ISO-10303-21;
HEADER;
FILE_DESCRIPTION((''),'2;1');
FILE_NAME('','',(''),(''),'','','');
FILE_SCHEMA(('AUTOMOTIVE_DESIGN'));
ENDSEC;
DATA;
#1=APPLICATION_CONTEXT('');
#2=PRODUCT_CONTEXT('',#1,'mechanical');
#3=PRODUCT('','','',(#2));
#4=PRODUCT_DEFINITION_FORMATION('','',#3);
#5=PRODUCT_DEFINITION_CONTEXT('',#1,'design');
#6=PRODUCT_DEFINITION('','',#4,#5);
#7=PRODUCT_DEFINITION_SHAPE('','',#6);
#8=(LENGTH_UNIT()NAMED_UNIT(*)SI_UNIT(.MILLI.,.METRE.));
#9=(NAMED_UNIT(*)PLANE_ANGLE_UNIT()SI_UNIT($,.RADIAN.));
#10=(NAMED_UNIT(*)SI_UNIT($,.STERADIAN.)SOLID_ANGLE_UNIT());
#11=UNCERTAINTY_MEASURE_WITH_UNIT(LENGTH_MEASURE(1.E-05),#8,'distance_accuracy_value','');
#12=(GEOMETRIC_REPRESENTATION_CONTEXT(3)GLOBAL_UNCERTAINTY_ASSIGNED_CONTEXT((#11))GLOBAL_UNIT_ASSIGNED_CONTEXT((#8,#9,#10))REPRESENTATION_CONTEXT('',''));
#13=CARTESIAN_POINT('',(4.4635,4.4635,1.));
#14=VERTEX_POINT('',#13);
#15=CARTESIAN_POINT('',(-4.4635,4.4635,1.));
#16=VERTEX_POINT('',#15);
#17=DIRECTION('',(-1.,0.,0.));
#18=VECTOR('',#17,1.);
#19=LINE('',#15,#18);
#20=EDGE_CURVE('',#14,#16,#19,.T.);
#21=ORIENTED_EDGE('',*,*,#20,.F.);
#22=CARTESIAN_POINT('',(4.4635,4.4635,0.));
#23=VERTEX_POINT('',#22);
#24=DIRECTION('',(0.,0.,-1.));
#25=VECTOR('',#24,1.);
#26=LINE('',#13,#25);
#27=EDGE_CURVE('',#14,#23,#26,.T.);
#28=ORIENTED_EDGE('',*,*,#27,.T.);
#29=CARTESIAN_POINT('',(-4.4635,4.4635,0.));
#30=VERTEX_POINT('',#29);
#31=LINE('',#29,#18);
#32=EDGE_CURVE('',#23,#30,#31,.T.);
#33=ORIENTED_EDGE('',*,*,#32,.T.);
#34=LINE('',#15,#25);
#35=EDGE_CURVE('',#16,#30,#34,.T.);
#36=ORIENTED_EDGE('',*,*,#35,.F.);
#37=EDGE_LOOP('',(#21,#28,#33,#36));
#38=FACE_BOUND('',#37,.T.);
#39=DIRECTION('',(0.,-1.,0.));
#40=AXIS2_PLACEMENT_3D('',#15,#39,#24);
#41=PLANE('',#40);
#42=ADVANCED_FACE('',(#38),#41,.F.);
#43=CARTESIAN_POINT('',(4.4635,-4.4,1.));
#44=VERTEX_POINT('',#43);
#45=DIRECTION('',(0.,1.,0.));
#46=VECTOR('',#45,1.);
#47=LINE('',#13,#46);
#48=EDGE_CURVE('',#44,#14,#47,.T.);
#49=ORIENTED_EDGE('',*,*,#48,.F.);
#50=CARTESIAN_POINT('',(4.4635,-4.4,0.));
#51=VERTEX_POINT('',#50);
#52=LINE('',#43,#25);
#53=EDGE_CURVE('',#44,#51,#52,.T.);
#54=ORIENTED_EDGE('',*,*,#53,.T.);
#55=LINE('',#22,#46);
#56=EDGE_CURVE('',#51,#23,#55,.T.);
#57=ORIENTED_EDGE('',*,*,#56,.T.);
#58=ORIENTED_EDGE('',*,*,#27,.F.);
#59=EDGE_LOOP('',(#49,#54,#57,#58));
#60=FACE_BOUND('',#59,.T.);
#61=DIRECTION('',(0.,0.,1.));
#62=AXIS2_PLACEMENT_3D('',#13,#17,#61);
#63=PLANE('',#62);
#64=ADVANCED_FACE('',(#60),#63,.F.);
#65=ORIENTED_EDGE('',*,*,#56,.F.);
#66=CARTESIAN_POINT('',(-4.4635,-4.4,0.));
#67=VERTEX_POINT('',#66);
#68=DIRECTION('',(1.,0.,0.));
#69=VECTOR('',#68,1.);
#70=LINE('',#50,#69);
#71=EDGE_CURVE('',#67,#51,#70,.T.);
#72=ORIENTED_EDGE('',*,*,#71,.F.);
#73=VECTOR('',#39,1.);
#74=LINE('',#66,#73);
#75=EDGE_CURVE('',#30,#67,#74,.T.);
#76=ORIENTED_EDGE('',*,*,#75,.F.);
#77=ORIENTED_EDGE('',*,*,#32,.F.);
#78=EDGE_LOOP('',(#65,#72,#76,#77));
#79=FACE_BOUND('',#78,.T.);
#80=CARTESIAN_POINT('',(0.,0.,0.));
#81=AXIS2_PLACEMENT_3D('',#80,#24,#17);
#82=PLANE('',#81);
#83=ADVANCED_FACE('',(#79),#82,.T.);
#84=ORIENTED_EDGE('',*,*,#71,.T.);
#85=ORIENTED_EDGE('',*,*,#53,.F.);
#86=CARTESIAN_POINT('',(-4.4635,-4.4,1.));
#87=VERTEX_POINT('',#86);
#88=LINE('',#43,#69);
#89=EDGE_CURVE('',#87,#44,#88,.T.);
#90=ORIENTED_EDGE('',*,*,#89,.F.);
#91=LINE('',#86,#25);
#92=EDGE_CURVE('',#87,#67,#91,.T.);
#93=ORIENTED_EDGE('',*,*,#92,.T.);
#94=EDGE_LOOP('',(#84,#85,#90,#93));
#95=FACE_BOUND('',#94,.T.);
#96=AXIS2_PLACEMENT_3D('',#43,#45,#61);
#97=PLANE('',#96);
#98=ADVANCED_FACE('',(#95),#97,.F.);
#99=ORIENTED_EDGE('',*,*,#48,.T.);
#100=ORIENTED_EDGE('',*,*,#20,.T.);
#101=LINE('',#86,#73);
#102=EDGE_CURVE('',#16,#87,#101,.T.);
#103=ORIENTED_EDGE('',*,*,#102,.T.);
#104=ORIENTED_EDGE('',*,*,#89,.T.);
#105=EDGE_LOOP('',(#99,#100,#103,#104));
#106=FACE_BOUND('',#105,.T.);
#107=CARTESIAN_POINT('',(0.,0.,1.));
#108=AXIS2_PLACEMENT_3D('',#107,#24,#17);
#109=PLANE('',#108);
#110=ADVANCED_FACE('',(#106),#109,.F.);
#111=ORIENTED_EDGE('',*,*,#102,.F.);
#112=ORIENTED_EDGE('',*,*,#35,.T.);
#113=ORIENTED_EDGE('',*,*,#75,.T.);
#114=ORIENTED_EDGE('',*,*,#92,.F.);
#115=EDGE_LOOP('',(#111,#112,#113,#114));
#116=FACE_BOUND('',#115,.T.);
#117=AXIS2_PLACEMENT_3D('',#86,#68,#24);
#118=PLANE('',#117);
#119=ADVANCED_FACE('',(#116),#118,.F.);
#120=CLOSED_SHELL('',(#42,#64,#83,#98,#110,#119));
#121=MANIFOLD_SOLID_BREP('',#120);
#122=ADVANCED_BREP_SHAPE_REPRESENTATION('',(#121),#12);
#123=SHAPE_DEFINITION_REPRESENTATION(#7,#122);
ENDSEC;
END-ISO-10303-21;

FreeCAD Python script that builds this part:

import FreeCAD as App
import Part
import Sketcher

V = App.Vector


def add_polygon(sketch, points):
    """Adds a closed chain of lines whose ends are joined by coincident constraints."""
    first, n = sketch.GeometryCount, len(points)
    for a, b in zip(points, points[1:] + points[:1]):
        sketch.addGeometry(Part.LineSegment(App.Vector(*a, 0), App.Vector(*b, 0)), False)
    for i in range(n):
        sketch.addConstraint(Sketcher.Constraint("Coincident", first + i, 2, first + (i + 1) % n, 1))

doc = App.newDocument("Part")
params = doc.addObject("Spreadsheet::Sheet", "Params")
for row, (alias, value) in enumerate([
    ("pad1_length", "1 mm"),
], start=1):
    params.set(f"A{row}", alias)
    params.set(f"B{row}", "=" + value)
    params.setAlias(f"B{row}", alias)

body = doc.addObject("PartDesign::Body", "Body")

# Sketch on XY plane
sketch1 = doc.addObject("Sketcher::SketchObject", "Sketch")
body.addObject(sketch1)
sketch1.AttachmentSupport = (doc.XY_Plane, [""])
sketch1.MapMode = "FlatFace"
add_polygon(sketch1, [(-4.4635, 4.4635), (-4.4635, -4.4), (4.4635, -4.4), (4.4635, 4.4635)])  # lines 0-3
sketch1.addConstraint(Sketcher.Constraint("Vertical", 0))
sketch1.addConstraint(Sketcher.Constraint("Horizontal", 1))
sketch1.addConstraint(Sketcher.Constraint("Vertical", 2))
sketch1.addConstraint(Sketcher.Constraint("Horizontal", 3))
sketch1.addConstraint(Sketcher.Constraint("DistanceY", 0, 2, -1, 1, 4.4))
sketch1.addConstraint(Sketcher.Constraint("DistanceX", 1, 1, 1, 2, 8.927))
sketch1.addConstraint(Sketcher.Constraint("DistanceY", 0, 2, 0, 1, 8.8635))
sketch1.addConstraint(Sketcher.Constraint("DistanceX", 0, 2, -1, 1, 4.4635))
pad1 = doc.addObject("PartDesign::Pad", "Pad")
body.addObject(pad1)
pad1.Profile = sketch1
pad1.setExpression("Length", "Params.pad1_length")

doc.recompute()
